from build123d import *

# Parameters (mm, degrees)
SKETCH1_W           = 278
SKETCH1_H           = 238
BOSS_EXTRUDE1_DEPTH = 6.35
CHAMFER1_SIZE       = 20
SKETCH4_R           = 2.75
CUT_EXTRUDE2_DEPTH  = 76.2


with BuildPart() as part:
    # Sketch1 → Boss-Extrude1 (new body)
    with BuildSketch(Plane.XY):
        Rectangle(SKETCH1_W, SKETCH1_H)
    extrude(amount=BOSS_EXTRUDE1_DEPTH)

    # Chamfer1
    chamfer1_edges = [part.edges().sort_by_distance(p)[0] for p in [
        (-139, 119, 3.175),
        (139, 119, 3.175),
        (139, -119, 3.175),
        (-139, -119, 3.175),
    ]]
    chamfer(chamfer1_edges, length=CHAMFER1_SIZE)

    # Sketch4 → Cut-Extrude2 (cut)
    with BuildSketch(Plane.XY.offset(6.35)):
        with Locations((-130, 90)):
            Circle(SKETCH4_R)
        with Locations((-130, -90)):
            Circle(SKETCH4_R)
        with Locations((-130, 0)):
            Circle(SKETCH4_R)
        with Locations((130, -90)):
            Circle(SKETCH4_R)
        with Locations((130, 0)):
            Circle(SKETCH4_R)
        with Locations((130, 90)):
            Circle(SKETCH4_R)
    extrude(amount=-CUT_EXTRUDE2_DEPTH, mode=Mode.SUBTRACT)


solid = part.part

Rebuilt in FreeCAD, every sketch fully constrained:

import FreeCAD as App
import Part
import Sketcher
from FreeCAD import Vector
Q = App.Units.Quantity


def edges_at(feature, points):
    """Names of the edges that pass closest to the given points."""
    edges = feature.Shape.Edges
    near = lambda p: min(range(len(edges)), key=lambda i: edges[i].distToShape(Part.Vertex(*p))[0])
    return sorted({f"Edge{near(p) + 1}" for p in points})


def add_polygon(sketch, points):
    """Adds a closed chain of lines whose ends are joined by coincident constraints."""
    first, n = sketch.GeometryCount, len(points)
    for a, b in zip(points, points[1:] + points[:1]):
        sketch.addGeometry(Part.LineSegment(App.Vector(*a, 0), App.Vector(*b, 0)), False)
    for i in range(n):
        sketch.addConstraint(Sketcher.Constraint("Coincident", first + i, 2, first + (i + 1) % n, 1))

doc = App.newDocument("Part")
body = doc.addObject("PartDesign::Body", "Body")

# Sketch on XY plane
sketch1 = body.newObject("Sketcher::SketchObject", "Sketch")
sketch1.AttachmentSupport = (doc.getObject("XY_Plane"), [""])
sketch1.MapMode = "FlatFace"
add_polygon(sketch1, [(-139, 119), (-139, -119), (139, -119), (139, 119)])  # lines 0-3
sketch1.addConstraint([
    Sketcher.Constraint("Vertical", 0),
    Sketcher.Constraint("Horizontal", 1),
    Sketcher.Constraint("Vertical", 2),
    Sketcher.Constraint("Horizontal", 3),
    Sketcher.Constraint("Symmetric", 0, 2, 2, 2, -1, 1),
    Sketcher.Constraint("DistanceX", 1, 1, 1, 2, Q("278 mm")),
    Sketcher.Constraint("DistanceY", 0, 2, 0, 1, Q("238 mm")),
])
pad1 = body.newObject("PartDesign::Pad", "Pad")
pad1.Profile = sketch1
pad1.Length = 6.35
doc.recompute()

chamfer = body.newObject("PartDesign::Chamfer", "Chamfer")
chamfer.Base = (pad1, edges_at(pad1, [
    (-139, 119, 3.175),
    (139, 119, 3.175),
    (139, -119, 3.175),
    (-139, -119, 3.175),
]))
chamfer.Size = 20

# Sketch on XY plane
sketch2 = body.newObject("Sketcher::SketchObject", "Sketch001")
sketch2.AttachmentSupport = (doc.getObject("XY_Plane"), [""])
sketch2.MapMode = "FlatFace"
sketch2.AttachmentOffset = App.Placement(Vector(0, 0, 6.35), App.Rotation())
sketch2.addGeometry([
    Part.Circle(Vector(-130, 90, 0), Vector(0, 0, 1), 2.8),  # 0
    Part.Circle(Vector(-130, -90, 0), Vector(0, 0, 1), 2.8),  # 1
    Part.Circle(Vector(-130, 0, 0), Vector(0, 0, 1), 2.8),  # 2
    Part.Circle(Vector(130, -90, 0), Vector(0, 0, 1), 2.8),  # 3
    Part.Circle(Vector(130, 0, 0), Vector(0, 0, 1), 2.8),  # 4
    Part.Circle(Vector(130, 90, 0), Vector(0, 0, 1), 2.8),  # 5
], False)
sketch2.addConstraint([
    Sketcher.Constraint("Equal", 0, 1),
    Sketcher.Constraint("Equal", 1, 2),
    Sketcher.Constraint("Equal", 2, 3),
    Sketcher.Constraint("Equal", 3, 4),
    Sketcher.Constraint("Equal", 4, 5),
    Sketcher.Constraint("Symmetric", 0, 3, 3, 3, -1, 1),
    Sketcher.Constraint("Symmetric", 2, 3, 4, 3, -1, 1),
    Sketcher.Constraint("Symmetric", 1, 3, 5, 3, -1, 1),
    Sketcher.Constraint("Symmetric", 1, 3, 3, 3, -2),
    Sketcher.Constraint("PointOnObject", 2, 3, -1),
    Sketcher.Constraint("Vertical", 1, 3, 2, 3),
    Sketcher.Constraint("Diameter", 0, Q("5.5 mm")),
    Sketcher.Constraint("DistanceX", 0, 3, -1, 1, Q("130 mm")),
    Sketcher.Constraint("DistanceY", -1, 1, 0, 3, Q("90 mm")),
])
pocket1 = body.newObject("PartDesign::Pocket", "Pocket")
pocket1.Profile = sketch2
pocket1.Length = 76.2

doc.recompute()
